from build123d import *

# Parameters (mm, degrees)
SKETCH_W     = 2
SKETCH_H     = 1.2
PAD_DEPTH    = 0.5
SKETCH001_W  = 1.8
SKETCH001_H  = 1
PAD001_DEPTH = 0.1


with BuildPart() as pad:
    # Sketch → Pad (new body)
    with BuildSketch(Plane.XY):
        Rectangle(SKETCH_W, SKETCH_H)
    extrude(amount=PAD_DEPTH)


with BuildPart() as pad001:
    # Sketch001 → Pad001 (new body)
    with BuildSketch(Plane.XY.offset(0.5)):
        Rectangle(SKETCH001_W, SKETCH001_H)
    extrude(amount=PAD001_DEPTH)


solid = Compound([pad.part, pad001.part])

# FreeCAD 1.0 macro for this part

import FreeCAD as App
import Part
import Sketcher
from FreeCAD import Vector
Q = App.Units.Quantity


def add_polygon(sketch, points):
    """Adds a closed chain of lines whose ends are joined by coincident constraints."""
    first, n = sketch.GeometryCount, len(points)
    for a, b in zip(points, points[1:] + points[:1]):
        sketch.addGeometry(Part.LineSegment(App.Vector(*a, 0), App.Vector(*b, 0)), False)
    for i in range(n):
        sketch.addConstraint(Sketcher.Constraint("Coincident", first + i, 2, first + (i + 1) % n, 1))

doc = App.newDocument("Part")
body = doc.addObject("PartDesign::Body", "Body")

# Sketch on XY plane
sketch1 = doc.addObject("Sketcher::SketchObject", "Sketch")
body.addObject(sketch1)
sketch1.AttachmentSupport = (doc.XY_Plane, [""])
sketch1.MapMode = "FlatFace"
add_polygon(sketch1, [(-1, 0.6), (-1, -0.6), (1, -0.6), (1, 0.6)])  # lines 0-3
sketch1.addConstraint([
    Sketcher.Constraint("Vertical", 0),
    Sketcher.Constraint("Horizontal", 1),
    Sketcher.Constraint("Vertical", 2),
    Sketcher.Constraint("Horizontal", 3),
    Sketcher.Constraint("Symmetric", 0, 2, 2, 2, -1, 1),
    Sketcher.Constraint("DistanceX", 1, 1, 1, 2, Q("2 mm")),
    Sketcher.Constraint("DistanceY", 0, 2, 0, 1, Q("1.2 mm")),
])
pad1 = doc.addObject("PartDesign::Pad", "Pad")
body.addObject(pad1)
pad1.Profile = sketch1
pad1.Length = 0.5
body2 = doc.addObject("PartDesign::Body", "Body001")

# Sketch on XY plane
sketch2 = doc.addObject("Sketcher::SketchObject", "Sketch001")
body2.addObject(sketch2)
sketch2.AttachmentSupport = (doc.getObject("XY_Plane001"), [""])
sketch2.MapMode = "FlatFace"
sketch2.AttachmentOffset = App.Placement(Vector(0, 0, 0.5), App.Rotation())
add_polygon(sketch2, [(-0.9, 0.5), (-0.9, -0.5), (0.9, -0.5), (0.9, 0.5)])  # lines 0-3
sketch2.addConstraint([
    Sketcher.Constraint("Vertical", 0),
    Sketcher.Constraint("Horizontal", 1),
    Sketcher.Constraint("Vertical", 2),
    Sketcher.Constraint("Horizontal", 3),
    Sketcher.Constraint("Symmetric", 0, 2, 2, 2, -1, 1),
    Sketcher.Constraint("DistanceY", 0, 2, 0, 1, Q("1 mm")),
    Sketcher.Constraint("DistanceX", 1, 1, 1, 2, Q("1.8 mm")),
])
pad2 = doc.addObject("PartDesign::Pad", "Pad001")
body2.addObject(pad2)
pad2.Profile = sketch2
pad2.Length = 0.1

doc.recompute()
